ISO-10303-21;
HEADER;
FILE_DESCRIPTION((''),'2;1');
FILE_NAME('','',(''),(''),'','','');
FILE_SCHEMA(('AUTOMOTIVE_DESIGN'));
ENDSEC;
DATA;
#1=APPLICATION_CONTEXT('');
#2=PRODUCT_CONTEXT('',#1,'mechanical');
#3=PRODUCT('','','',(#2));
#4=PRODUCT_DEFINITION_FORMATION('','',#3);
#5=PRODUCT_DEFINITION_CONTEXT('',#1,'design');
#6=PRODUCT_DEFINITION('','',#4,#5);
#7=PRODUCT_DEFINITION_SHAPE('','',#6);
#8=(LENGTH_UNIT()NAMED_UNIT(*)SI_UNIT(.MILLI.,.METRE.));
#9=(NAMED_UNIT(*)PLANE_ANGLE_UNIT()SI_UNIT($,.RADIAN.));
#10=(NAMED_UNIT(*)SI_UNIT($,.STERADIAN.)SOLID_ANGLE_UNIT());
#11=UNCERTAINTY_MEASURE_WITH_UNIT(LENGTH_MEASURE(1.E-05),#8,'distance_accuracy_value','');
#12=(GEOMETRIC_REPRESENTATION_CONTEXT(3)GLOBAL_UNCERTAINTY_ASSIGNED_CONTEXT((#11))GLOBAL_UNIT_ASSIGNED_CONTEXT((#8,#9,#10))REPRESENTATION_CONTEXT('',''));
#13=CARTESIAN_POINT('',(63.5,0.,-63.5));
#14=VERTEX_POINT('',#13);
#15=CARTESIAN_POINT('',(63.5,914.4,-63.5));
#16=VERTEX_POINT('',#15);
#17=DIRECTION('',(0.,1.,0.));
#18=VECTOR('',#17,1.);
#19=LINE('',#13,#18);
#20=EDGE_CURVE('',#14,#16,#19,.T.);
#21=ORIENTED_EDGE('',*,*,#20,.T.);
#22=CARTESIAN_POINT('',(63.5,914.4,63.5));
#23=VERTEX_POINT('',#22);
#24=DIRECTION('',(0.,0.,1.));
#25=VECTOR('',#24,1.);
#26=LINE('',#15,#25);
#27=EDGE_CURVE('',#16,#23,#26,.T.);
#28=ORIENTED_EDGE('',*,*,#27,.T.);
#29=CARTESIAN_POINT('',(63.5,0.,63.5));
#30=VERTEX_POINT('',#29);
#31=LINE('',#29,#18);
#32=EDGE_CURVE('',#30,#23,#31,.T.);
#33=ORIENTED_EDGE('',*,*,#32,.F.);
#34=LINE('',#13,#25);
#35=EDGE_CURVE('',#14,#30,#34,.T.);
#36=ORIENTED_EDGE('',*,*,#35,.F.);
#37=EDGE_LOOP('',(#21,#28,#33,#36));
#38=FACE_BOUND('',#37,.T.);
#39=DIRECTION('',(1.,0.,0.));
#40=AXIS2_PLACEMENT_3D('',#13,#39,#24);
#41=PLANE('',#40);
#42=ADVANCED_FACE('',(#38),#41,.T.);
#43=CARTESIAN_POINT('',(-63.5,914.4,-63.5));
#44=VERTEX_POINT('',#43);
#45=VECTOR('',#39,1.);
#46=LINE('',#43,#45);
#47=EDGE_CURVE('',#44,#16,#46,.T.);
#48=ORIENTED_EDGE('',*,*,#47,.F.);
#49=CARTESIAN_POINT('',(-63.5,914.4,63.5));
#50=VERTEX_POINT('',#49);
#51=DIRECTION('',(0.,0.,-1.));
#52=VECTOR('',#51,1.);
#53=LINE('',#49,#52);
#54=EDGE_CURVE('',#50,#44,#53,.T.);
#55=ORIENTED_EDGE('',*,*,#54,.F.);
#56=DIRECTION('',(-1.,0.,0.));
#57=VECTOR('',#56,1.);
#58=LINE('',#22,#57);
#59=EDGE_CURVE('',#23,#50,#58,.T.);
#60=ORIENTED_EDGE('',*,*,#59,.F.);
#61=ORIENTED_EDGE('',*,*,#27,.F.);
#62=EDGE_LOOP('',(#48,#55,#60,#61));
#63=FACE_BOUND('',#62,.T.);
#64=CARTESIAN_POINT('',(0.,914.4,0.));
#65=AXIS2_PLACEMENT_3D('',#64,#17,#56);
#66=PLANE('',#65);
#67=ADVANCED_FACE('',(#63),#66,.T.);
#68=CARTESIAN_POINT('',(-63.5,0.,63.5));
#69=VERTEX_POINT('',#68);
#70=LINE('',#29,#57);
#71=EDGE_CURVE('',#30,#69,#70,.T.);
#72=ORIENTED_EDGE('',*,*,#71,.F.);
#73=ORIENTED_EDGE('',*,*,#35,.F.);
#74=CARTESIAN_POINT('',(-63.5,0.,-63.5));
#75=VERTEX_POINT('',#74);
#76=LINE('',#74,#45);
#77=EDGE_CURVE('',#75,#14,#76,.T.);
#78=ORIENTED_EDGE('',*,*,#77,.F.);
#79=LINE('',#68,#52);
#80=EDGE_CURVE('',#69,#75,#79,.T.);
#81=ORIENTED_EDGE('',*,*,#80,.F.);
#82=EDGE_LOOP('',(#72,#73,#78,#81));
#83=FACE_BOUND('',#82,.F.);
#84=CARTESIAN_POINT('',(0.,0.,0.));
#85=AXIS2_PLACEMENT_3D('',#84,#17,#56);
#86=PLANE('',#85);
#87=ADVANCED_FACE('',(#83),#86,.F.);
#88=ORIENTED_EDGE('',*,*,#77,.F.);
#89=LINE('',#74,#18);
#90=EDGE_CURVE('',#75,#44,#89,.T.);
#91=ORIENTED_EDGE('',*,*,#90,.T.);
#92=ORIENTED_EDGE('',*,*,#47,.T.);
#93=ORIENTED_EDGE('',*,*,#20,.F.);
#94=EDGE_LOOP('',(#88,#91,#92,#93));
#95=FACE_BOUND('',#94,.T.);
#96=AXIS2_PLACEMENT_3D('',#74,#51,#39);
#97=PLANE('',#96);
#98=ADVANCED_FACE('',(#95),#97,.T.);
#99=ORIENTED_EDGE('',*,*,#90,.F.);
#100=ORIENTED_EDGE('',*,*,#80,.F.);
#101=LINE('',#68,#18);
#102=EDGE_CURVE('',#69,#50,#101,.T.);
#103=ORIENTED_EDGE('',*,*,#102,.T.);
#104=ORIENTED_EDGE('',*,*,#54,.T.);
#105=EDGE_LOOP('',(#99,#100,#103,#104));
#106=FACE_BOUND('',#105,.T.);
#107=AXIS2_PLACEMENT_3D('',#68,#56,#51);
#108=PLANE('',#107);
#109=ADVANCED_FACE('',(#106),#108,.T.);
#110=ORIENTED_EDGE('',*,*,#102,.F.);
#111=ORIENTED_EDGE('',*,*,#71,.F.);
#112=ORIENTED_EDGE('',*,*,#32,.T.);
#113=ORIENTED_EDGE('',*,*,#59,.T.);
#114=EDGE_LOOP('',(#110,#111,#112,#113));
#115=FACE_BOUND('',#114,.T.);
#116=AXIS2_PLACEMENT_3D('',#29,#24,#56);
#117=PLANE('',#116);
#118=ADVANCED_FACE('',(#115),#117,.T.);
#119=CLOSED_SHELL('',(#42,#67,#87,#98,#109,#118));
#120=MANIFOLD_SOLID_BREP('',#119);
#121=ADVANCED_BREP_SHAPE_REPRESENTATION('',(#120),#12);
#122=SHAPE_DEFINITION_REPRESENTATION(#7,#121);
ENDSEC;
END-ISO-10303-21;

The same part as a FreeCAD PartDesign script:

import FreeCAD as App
import Part
import Sketcher
Q = App.Units.Quantity


def add_polygon(sketch, points):
    """Adds a closed chain of lines whose ends are joined by coincident constraints."""
    first, n = sketch.GeometryCount, len(points)
    for a, b in zip(points, points[1:] + points[:1]):
        sketch.addGeometry(Part.LineSegment(App.Vector(*a, 0), App.Vector(*b, 0)), False)
    for i in range(n):
        sketch.addConstraint(Sketcher.Constraint("Coincident", first + i, 2, first + (i + 1) % n, 1))

doc = App.newDocument("Part")
body = doc.addObject("PartDesign::Body", "Body")

sketch1 = body.newObject("Sketcher::SketchObject", "Sketch")
sketch1.AttachmentSupport = (doc.getObject("XZ_Plane"), [""])
sketch1.MapMode = "FlatFace"
add_polygon(sketch1, [(-63.5, 63.5), (63.5, 63.5), (63.5, -63.5), (-63.5, -63.5)])
sketch1.addConstraint([
    Sketcher.Constraint("Horizontal", 0),
    Sketcher.Constraint("Vertical", 1),
    Sketcher.Constraint("Horizontal", 2),
    Sketcher.Constraint("Vertical", 3),
    Sketcher.Constraint("Symmetric", 0, 2, 2, 2, -1, 1),
    Sketcher.Constraint("Equal", 2, 1),
    Sketcher.Constraint("DistanceX", 0, 1, 0, 2, Q("5 in")),
])
pad1 = body.newObject("PartDesign::Pad", "Pad")
pad1.Profile = sketch1
pad1.Length = Q("36 in")
pad1.Reversed = True

doc.recompute()
